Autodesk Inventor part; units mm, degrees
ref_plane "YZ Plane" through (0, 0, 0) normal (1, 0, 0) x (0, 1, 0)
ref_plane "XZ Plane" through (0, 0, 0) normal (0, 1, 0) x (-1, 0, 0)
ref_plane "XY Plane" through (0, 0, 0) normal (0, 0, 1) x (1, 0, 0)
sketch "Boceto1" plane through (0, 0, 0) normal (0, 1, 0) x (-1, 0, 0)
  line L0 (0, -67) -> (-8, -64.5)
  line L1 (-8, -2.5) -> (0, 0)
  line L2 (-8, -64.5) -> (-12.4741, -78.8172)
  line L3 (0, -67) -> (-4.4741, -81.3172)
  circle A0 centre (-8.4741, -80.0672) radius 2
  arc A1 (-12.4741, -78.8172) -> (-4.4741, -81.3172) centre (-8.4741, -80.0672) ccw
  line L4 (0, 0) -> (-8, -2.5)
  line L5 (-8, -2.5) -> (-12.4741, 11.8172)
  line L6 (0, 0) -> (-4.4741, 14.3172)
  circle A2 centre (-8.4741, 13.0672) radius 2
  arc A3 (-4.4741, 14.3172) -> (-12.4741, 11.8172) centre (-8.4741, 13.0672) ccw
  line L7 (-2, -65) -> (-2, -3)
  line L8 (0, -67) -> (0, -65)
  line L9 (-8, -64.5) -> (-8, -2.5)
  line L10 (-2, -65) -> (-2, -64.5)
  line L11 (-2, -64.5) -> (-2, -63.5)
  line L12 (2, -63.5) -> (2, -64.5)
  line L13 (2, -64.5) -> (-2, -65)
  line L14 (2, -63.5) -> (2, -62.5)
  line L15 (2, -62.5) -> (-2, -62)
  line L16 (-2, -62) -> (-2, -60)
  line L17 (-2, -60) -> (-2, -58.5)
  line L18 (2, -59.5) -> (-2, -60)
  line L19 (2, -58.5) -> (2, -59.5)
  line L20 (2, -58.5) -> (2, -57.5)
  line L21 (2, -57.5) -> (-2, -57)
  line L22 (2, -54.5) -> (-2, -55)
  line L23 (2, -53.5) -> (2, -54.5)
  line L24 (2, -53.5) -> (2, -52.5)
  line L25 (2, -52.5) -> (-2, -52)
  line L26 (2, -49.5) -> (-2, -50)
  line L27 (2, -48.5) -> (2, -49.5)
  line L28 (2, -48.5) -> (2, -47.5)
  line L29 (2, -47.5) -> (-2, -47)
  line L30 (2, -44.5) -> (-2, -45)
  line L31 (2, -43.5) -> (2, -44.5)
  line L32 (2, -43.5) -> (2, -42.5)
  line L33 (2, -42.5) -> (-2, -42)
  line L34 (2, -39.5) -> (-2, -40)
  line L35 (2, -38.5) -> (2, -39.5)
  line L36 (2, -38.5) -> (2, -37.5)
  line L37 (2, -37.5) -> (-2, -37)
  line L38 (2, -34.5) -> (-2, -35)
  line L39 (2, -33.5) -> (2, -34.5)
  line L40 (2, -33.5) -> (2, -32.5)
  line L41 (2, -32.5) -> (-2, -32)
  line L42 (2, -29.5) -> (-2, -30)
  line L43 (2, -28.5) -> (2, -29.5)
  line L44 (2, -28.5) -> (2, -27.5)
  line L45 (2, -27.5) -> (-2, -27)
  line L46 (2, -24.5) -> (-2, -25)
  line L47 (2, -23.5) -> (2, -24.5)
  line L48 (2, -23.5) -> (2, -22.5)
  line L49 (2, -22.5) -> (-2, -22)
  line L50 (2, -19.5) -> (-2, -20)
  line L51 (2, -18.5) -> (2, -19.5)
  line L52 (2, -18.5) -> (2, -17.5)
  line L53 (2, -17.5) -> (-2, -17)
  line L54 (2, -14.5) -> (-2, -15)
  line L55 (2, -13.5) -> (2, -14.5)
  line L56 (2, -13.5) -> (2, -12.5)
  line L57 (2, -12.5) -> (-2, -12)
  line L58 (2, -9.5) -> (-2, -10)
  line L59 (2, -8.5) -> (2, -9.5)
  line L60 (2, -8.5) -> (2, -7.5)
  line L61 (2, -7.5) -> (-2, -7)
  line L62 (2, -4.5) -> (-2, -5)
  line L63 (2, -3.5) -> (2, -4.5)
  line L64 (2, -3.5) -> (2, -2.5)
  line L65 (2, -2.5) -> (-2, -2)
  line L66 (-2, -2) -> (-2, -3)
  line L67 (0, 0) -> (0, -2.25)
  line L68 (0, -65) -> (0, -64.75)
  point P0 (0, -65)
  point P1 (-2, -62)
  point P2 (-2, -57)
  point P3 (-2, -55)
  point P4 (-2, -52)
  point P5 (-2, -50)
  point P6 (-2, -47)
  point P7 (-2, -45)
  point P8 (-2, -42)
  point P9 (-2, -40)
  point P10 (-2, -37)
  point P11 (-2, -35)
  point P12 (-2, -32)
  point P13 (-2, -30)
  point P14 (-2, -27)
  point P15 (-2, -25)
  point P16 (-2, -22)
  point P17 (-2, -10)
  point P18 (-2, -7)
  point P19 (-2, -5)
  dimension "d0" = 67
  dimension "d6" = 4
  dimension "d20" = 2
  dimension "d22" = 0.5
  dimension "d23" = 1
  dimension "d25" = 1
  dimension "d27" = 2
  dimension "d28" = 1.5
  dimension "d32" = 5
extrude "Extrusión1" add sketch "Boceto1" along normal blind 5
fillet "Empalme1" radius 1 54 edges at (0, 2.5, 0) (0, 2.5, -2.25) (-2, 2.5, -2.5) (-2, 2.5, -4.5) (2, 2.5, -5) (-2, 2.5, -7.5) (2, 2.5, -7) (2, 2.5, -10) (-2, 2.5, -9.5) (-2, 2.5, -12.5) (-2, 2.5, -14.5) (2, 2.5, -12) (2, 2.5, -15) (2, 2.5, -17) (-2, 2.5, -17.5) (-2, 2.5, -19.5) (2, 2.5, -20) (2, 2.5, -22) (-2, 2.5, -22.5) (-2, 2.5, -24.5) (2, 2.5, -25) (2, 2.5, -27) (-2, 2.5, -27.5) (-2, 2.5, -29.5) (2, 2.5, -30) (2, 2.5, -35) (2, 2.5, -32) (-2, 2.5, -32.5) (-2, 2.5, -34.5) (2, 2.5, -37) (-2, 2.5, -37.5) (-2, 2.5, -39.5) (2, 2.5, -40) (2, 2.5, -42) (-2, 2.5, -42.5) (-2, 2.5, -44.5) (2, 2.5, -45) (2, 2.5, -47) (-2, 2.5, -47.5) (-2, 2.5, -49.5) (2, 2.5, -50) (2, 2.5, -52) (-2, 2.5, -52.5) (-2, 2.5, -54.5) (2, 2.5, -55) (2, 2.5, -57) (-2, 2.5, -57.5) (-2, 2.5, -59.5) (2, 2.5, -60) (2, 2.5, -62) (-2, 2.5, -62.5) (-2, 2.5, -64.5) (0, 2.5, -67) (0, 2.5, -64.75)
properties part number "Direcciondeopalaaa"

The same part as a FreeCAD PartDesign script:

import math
import FreeCAD as App
import Part
import Sketcher

V = App.Vector


def edges_at(feature, points):
    """Names of the edges that pass closest to the given points."""
    edges = feature.Shape.Edges
    near = lambda p: min(range(len(edges)), key=lambda i: edges[i].distToShape(Part.Vertex(*p))[0])
    return sorted({f"Edge{near(p) + 1}" for p in points})

doc = App.newDocument("Part")
body = doc.addObject("PartDesign::Body", "Body")

# Sketch on XZ plane
sketch1 = doc.addObject("Sketcher::SketchObject", "Sketch")
body.addObject(sketch1)
sketch1.AttachmentSupport = (doc.XZ_Plane, [""])
sketch1.MapMode = "FlatFace"
sketch1.addGeometry([
    Part.LineSegment(V(4.5, -81.3, 0), V(0, -67, 0)),  # 0
    Part.LineSegment(V(0, -67, 0), V(0, -64.8, 0)),  # 1
    Part.LineSegment(V(0, -64.8, 0), V(-2, -64.5, 0)),  # 2
    Part.LineSegment(V(-2, -64.5, 0), V(-2, -62.5, 0)),  # 3
    Part.LineSegment(V(-2, -62.5, 0), V(2, -62, 0)),  # 4
    Part.LineSegment(V(2, -62, 0), V(2, -60, 0)),  # 5
    Part.LineSegment(V(2, -60, 0), V(-2, -59.5, 0)),  # 6
    Part.LineSegment(V(-2, -59.5, 0), V(-2, -57.5, 0)),  # 7
    Part.LineSegment(V(-2, -57.5, 0), V(2, -57, 0)),  # 8
    Part.LineSegment(V(2, -57, 0), V(2, -55, 0)),  # 9
    Part.LineSegment(V(2, -55, 0), V(-2, -54.5, 0)),  # 10
    Part.LineSegment(V(-2, -54.5, 0), V(-2, -52.5, 0)),  # 11
    Part.LineSegment(V(-2, -52.5, 0), V(2, -52, 0)),  # 12
    Part.LineSegment(V(2, -52, 0), V(2, -50, 0)),  # 13
    Part.LineSegment(V(2, -50, 0), V(-2, -49.5, 0)),  # 14
    Part.LineSegment(V(-2, -49.5, 0), V(-2, -47.5, 0)),  # 15
    Part.LineSegment(V(-2, -47.5, 0), V(2, -47, 0)),  # 16
    Part.LineSegment(V(2, -47, 0), V(2, -45, 0)),  # 17
    Part.LineSegment(V(2, -45, 0), V(-2, -44.5, 0)),  # 18
    Part.LineSegment(V(-2, -44.5, 0), V(-2, -42.5, 0)),  # 19
    Part.LineSegment(V(-2, -42.5, 0), V(2, -42, 0)),  # 20
    Part.LineSegment(V(2, -42, 0), V(2, -40, 0)),  # 21
    Part.LineSegment(V(2, -40, 0), V(-2, -39.5, 0)),  # 22
    Part.LineSegment(V(-2, -39.5, 0), V(-2, -37.5, 0)),  # 23
    Part.LineSegment(V(-2, -37.5, 0), V(2, -37, 0)),  # 24
    Part.LineSegment(V(2, -37, 0), V(2, -35, 0)),  # 25
    Part.LineSegment(V(2, -35, 0), V(-2, -34.5, 0)),  # 26
    Part.LineSegment(V(-2, -34.5, 0), V(-2, -32.5, 0)),  # 27
    Part.LineSegment(V(-2, -32.5, 0), V(2, -32, 0)),  # 28
    Part.LineSegment(V(2, -32, 0), V(2, -30, 0)),  # 29
    Part.LineSegment(V(2, -30, 0), V(-2, -29.5, 0)),  # 30
    Part.LineSegment(V(-2, -29.5, 0), V(-2, -27.5, 0)),  # 31
    Part.LineSegment(V(-2, -27.5, 0), V(2, -27, 0)),  # 32
    Part.LineSegment(V(2, -27, 0), V(2, -25, 0)),  # 33
    Part.LineSegment(V(2, -25, 0), V(-2, -24.5, 0)),  # 34
    Part.LineSegment(V(-2, -24.5, 0), V(-2, -22.5, 0)),  # 35
    Part.LineSegment(V(-2, -22.5, 0), V(2, -22, 0)),  # 36
    Part.LineSegment(V(2, -22, 0), V(2, -20, 0)),  # 37
    Part.LineSegment(V(2, -20, 0), V(-2, -19.5, 0)),  # 38
    Part.LineSegment(V(-2, -19.5, 0), V(-2, -17.5, 0)),  # 39
    Part.LineSegment(V(-2, -17.5, 0), V(2, -17, 0)),  # 40
    Part.LineSegment(V(2, -17, 0), V(2, -15, 0)),  # 41
    Part.LineSegment(V(2, -15, 0), V(-2, -14.5, 0)),  # 42
    Part.LineSegment(V(-2, -14.5, 0), V(-2, -12.5, 0)),  # 43
    Part.LineSegment(V(-2, -12.5, 0), V(2, -12, 0)),  # 44
    Part.LineSegment(V(2, -12, 0), V(2, -10, 0)),  # 45
    Part.LineSegment(V(2, -10, 0), V(-2, -9.5, 0)),  # 46
    Part.LineSegment(V(-2, -9.5, 0), V(-2, -7.5, 0)),  # 47
    Part.LineSegment(V(-2, -7.5, 0), V(2, -7, 0)),  # 48
    Part.LineSegment(V(2, -7, 0), V(2, -5, 0)),  # 49
    Part.LineSegment(V(2, -5, 0), V(-2, -4.5, 0)),  # 50
    Part.LineSegment(V(-2, -4.5, 0), V(-2, -2.5, 0)),  # 51
    Part.LineSegment(V(-2, -2.5, 0), V(0, -2.2, 0)),  # 52
    Part.LineSegment(V(0, -2.2, 0), V(0, 0, 0)),  # 53
    Part.LineSegment(V(0, 0, 0), V(4.5, 14.3, 0)),  # 54
    Part.ArcOfCircle(Part.Circle(V(8.5, 13.1, 0), V(0, 0, 1), 4.2), math.radians(-17), math.radians(163)),  # 55
    Part.LineSegment(V(12.5, 11.8, 0), V(8, -2.5, 0)),  # 56
    Part.LineSegment(V(8, -2.5, 0), V(8, -64.5, 0)),  # 57
    Part.LineSegment(V(8, -64.5, 0), V(12.5, -78.8, 0)),  # 58
    Part.ArcOfCircle(Part.Circle(V(8.5, -80.1, 0), V(0, 0, 1), 4.2), math.radians(-163), math.radians(17)),  # 59
    Part.Circle(V(8.5, -80.1, 0), V(0, 0, 1), 2),  # 60
    Part.Circle(V(8.5, 13.1, 0), V(0, 0, 1), 2),  # 61
], False)
sketch1.addConstraint([
    Sketcher.Constraint("Coincident", 0, 2, 1, 1),
    Sketcher.Constraint("Coincident", 1, 2, 2, 1),
    Sketcher.Constraint("Coincident", 2, 2, 3, 1),
    Sketcher.Constraint("Coincident", 3, 2, 4, 1),
    Sketcher.Constraint("Coincident", 4, 2, 5, 1),
    Sketcher.Constraint("Coincident", 5, 2, 6, 1),
    Sketcher.Constraint("Coincident", 6, 2, 7, 1),
    Sketcher.Constraint("Coincident", 7, 2, 8, 1),
    Sketcher.Constraint("Coincident", 8, 2, 9, 1),
    Sketcher.Constraint("Coincident", 9, 2, 10, 1),
    Sketcher.Constraint("Coincident", 10, 2, 11, 1),
    Sketcher.Constraint("Coincident", 11, 2, 12, 1),
    Sketcher.Constraint("Coincident", 12, 2, 13, 1),
    Sketcher.Constraint("Coincident", 13, 2, 14, 1),
    Sketcher.Constraint("Coincident", 14, 2, 15, 1),
    Sketcher.Constraint("Coincident", 15, 2, 16, 1),
    Sketcher.Constraint("Coincident", 16, 2, 17, 1),
    Sketcher.Constraint("Coincident", 17, 2, 18, 1),
    Sketcher.Constraint("Coincident", 18, 2, 19, 1),
    Sketcher.Constraint("Coincident", 19, 2, 20, 1),
    Sketcher.Constraint("Coincident", 20, 2, 21, 1),
    Sketcher.Constraint("Coincident", 21, 2, 22, 1),
    Sketcher.Constraint("Coincident", 22, 2, 23, 1),
    Sketcher.Constraint("Coincident", 23, 2, 24, 1),
    Sketcher.Constraint("Coincident", 24, 2, 25, 1),
    Sketcher.Constraint("Coincident", 25, 2, 26, 1),
    Sketcher.Constraint("Coincident", 26, 2, 27, 1),
    Sketcher.Constraint("Coincident", 27, 2, 28, 1),
    Sketcher.Constraint("Coincident", 28, 2, 29, 1),
    Sketcher.Constraint("Coincident", 29, 2, 30, 1),
    Sketcher.Constraint("Coincident", 30, 2, 31, 1),
    Sketcher.Constraint("Coincident", 31, 2, 32, 1),
    Sketcher.Constraint("Coincident", 32, 2, 33, 1),
    Sketcher.Constraint("Coincident", 33, 2, 34, 1),
    Sketcher.Constraint("Coincident", 34, 2, 35, 1),
    Sketcher.Constraint("Coincident", 35, 2, 36, 1),
    Sketcher.Constraint("Coincident", 36, 2, 37, 1),
    Sketcher.Constraint("Coincident", 37, 2, 38, 1),
    Sketcher.Constraint("Coincident", 38, 2, 39, 1),
    Sketcher.Constraint("Coincident", 39, 2, 40, 1),
    Sketcher.Constraint("Coincident", 40, 2, 41, 1),
    Sketcher.Constraint("Coincident", 41, 2, 42, 1),
    Sketcher.Constraint("Coincident", 42, 2, 43, 1),
    Sketcher.Constraint("Coincident", 43, 2, 44, 1),
    Sketcher.Constraint("Coincident", 44, 2, 45, 1),
    Sketcher.Constraint("Coincident", 45, 2, 46, 1),
    Sketcher.Constraint("Coincident", 46, 2, 47, 1),
    Sketcher.Constraint("Coincident", 47, 2, 48, 1),
    Sketcher.Constraint("Coincident", 48, 2, 49, 1),
    Sketcher.Constraint("Coincident", 49, 2, 50, 1),
    Sketcher.Constraint("Coincident", 50, 2, 51, 1),
    Sketcher.Constraint("Coincident", 51, 2, 52, 1),
    Sketcher.Constraint("Coincident", 52, 2, 53, 1),
    Sketcher.Constraint("Coincident", 53, 2, 54, 1),
    Sketcher.Constraint("Tangent", 54, 2, 55, 2),
    Sketcher.Constraint("Tangent", 55, 1, 56, 1),
    Sketcher.Constraint("Coincident", 56, 2, 57, 1),
    Sketcher.Constraint("Coincident", 57, 2, 58, 1),
    Sketcher.Constraint("Tangent", 58, 2, 59, 2),
    Sketcher.Constraint("Tangent", 59, 1, 0, 1),
    Sketcher.Constraint("Vertical", 1),
    Sketcher.Constraint("Vertical", 3),
    Sketcher.Constraint("Vertical", 5),
    Sketcher.Constraint("Vertical", 7),
    Sketcher.Constraint("Vertical", 9),
    Sketcher.Constraint("Vertical", 11),
    Sketcher.Constraint("Vertical", 13),
    Sketcher.Constraint("Vertical", 15),
    Sketcher.Constraint("Vertical", 17),
    Sketcher.Constraint("Vertical", 19),
    Sketcher.Constraint("Vertical", 21),
    Sketcher.Constraint("Vertical", 23),
    Sketcher.Constraint("Vertical", 25),
    Sketcher.Constraint("Vertical", 27),
    Sketcher.Constraint("Vertical", 29),
    Sketcher.Constraint("Vertical", 31),
    Sketcher.Constraint("Vertical", 33),
    Sketcher.Constraint("Vertical", 35),
    Sketcher.Constraint("Vertical", 37),
    Sketcher.Constraint("Vertical", 39),
    Sketcher.Constraint("Vertical", 41),
    Sketcher.Constraint("Vertical", 43),
    Sketcher.Constraint("Vertical", 45),
    Sketcher.Constraint("Vertical", 47),
    Sketcher.Constraint("Vertical", 49),
    Sketcher.Constraint("Vertical", 51),
    Sketcher.Constraint("Vertical", 53),
    Sketcher.Constraint("Vertical", 57),
    Sketcher.Constraint("Coincident", 53, 2, -1, 1),
    Sketcher.Constraint("Coincident", 60, 3, 59, 3),
    Sketcher.Constraint("Coincident", 61, 3, 55, 3),
    Sketcher.Constraint("Equal", 55, 59),
    Sketcher.Constraint("Equal", 60, 61),
    Sketcher.Constraint("PointOnObject", 0, 2, -2),
    Sketcher.Constraint("Parallel", 2, 6),
    Sketcher.Constraint("Parallel", 4, 8),
    Sketcher.Constraint("Parallel", 6, 10),
    Sketcher.Constraint("Parallel", 8, 12),
    Sketcher.Constraint("Parallel", 10, 14),
    Sketcher.Constraint("Parallel", 12, 16),
    Sketcher.Constraint("Parallel", 14, 18),
    Sketcher.Constraint("Parallel", 16, 20),
    Sketcher.Constraint("Parallel", 18, 22),
    Sketcher.Constraint("Parallel", 20, 24),
    Sketcher.Constraint("Parallel", 22, 26),
    Sketcher.Constraint("Parallel", 24, 28),
    Sketcher.Constraint("Parallel", 26, 30),
    Sketcher.Constraint("Parallel", 28, 32),
    Sketcher.Constraint("Parallel", 30, 34),
    Sketcher.Constraint("Parallel", 32, 36),
    Sketcher.Constraint("Parallel", 34, 38),
    Sketcher.Constraint("Parallel", 36, 40),
    Sketcher.Constraint("Parallel", 38, 42),
    Sketcher.Constraint("Parallel", 40, 44),
    Sketcher.Constraint("Parallel", 42, 46),
    Sketcher.Constraint("Parallel", 44, 48),
    Sketcher.Constraint("Parallel", 46, 50),
    Sketcher.Constraint("Parallel", 48, 52),
    Sketcher.Constraint("Parallel", 54, 56),
    Sketcher.Constraint("Parallel", 0, 58),
    Sketcher.Constraint("Horizontal", 51, 2, 56, 2),
    Sketcher.Constraint("Horizontal", 2, 2, 57, 2),
    Sketcher.Constraint("Vertical", 55, 3, 59, 3),
    Sketcher.Constraint("Vertical", 3, 2, 6, 2),
    Sketcher.Constraint("Vertical", 5, 2, 8, 2),
    Sketcher.Constraint("Vertical", 7, 2, 10, 2),
    Sketcher.Constraint("Vertical", 9, 2, 12, 2),
    Sketcher.Constraint("Vertical", 11, 2, 14, 2),
    Sketcher.Constraint("Vertical", 13, 2, 16, 2),
    Sketcher.Constraint("Vertical", 15, 2, 18, 2),
    Sketcher.Constraint("Vertical", 17, 2, 20, 2),
    Sketcher.Constraint("Vertical", 19, 2, 22, 2),
    Sketcher.Constraint("Vertical", 21, 2, 24, 2),
    Sketcher.Constraint("Vertical", 23, 2, 26, 2),
    Sketcher.Constraint("Vertical", 25, 2, 28, 2),
    Sketcher.Constraint("Vertical", 27, 2, 30, 2),
    Sketcher.Constraint("Vertical", 29, 2, 32, 2),
    Sketcher.Constraint("Vertical", 31, 2, 34, 2),
    Sketcher.Constraint("Vertical", 33, 2, 36, 2),
    Sketcher.Constraint("Vertical", 35, 2, 38, 2),
    Sketcher.Constraint("Vertical", 37, 2, 40, 2),
    Sketcher.Constraint("Vertical", 39, 2, 42, 2),
    Sketcher.Constraint("Vertical", 41, 2, 44, 2),
    Sketcher.Constraint("Vertical", 43, 2, 46, 2),
    Sketcher.Constraint("Vertical", 45, 2, 48, 2),
    Sketcher.Constraint("Vertical", 47, 2, 50, 2),
    Sketcher.Constraint("Vertical", 55, 1, 58, 2),
    Sketcher.Constraint("Equal", 3, 5),
    Sketcher.Constraint("Equal", 5, 7),
    Sketcher.Constraint("Equal", 7, 9),
    Sketcher.Constraint("Equal", 9, 11),
    Sketcher.Constraint("Equal", 11, 13),
    Sketcher.Constraint("Equal", 13, 15),
    Sketcher.Constraint("Equal", 15, 17),
    Sketcher.Constraint("Equal", 17, 19),
    Sketcher.Constraint("Equal", 19, 21),
    Sketcher.Constraint("Equal", 21, 23),
    Sketcher.Constraint("Equal", 23, 25),
    Sketcher.Constraint("Equal", 25, 27),
    Sketcher.Constraint("Equal", 27, 29),
    Sketcher.Constraint("Equal", 29, 31),
    Sketcher.Constraint("Equal", 31, 33),
    Sketcher.Constraint("Equal", 33, 35),
    Sketcher.Constraint("Equal", 35, 37),
    Sketcher.Constraint("Equal", 37, 39),
    Sketcher.Constraint("Equal", 39, 41),
    Sketcher.Constraint("Equal", 41, 43),
    Sketcher.Constraint("Equal", 43, 45),
    Sketcher.Constraint("Equal", 45, 47),
    Sketcher.Constraint("Equal", 47, 49),
    Sketcher.Constraint("Equal", 49, 51),
    Sketcher.Constraint("Equal", 1, 53),
    Sketcher.Constraint("Equal", 54, 56),
    Sketcher.Constraint("Diameter", 60, 4.0),
    Sketcher.Constraint("DistanceY", 3, 1, 3, 2, 2.0),
    Sketcher.Constraint("DistanceY", 0, 2, -1, 1, 67.0),
    Sketcher.Constraint("DistanceX", 2, 2, -1, 1, 2.0),
    Sketcher.Constraint("DistanceX", -1, 1, 4, 2, 2.0),
    Sketcher.Constraint("DistanceY", 49, 2, -1, 1, 5.0),
    Sketcher.Constraint("Distance", 0, 15.0),
    Sketcher.Constraint("DistanceX", -1, 1, 56, 2, 8.0),
])
pad1 = doc.addObject("PartDesign::Pad", "Pad")
body.addObject(pad1)
pad1.Profile = sketch1
pad1.Length = 5
pad1.Reversed = True
doc.recompute()

fillet = doc.addObject("PartDesign::Fillet", "Fillet")
body.addObject(fillet)
fillet.Base = (pad1, edges_at(pad1, [
    (0, 2.5, 0),
    (0, 2.5, -2.25),
    (-2, 2.5, -2.5),
    (-2, 2.5, -4.5),
    (2, 2.5, -5),
    (-2, 2.5, -7.5),
    (2, 2.5, -7),
    (2, 2.5, -10),
    (-2, 2.5, -9.5),
    (-2, 2.5, -12.5),
    (-2, 2.5, -14.5),
    (2, 2.5, -12),
    (2, 2.5, -15),
    (2, 2.5, -17),
    (-2, 2.5, -17.5),
    (-2, 2.5, -19.5),
    (2, 2.5, -20),
    (2, 2.5, -22),
    (-2, 2.5, -22.5),
    (-2, 2.5, -24.5),
    (2, 2.5, -25),
    (2, 2.5, -27),
    (-2, 2.5, -27.5),
    (-2, 2.5, -29.5),
    (2, 2.5, -30),
    (2, 2.5, -35),
    (2, 2.5, -32),
    (-2, 2.5, -32.5),
    (-2, 2.5, -34.5),
    (2, 2.5, -37),
    (-2, 2.5, -37.5),
    (-2, 2.5, -39.5),
    (2, 2.5, -40),
    (2, 2.5, -42),
    (-2, 2.5, -42.5),
    (-2, 2.5, -44.5),
    (2, 2.5, -45),
    (2, 2.5, -47),
    (-2, 2.5, -47.5),
    (-2, 2.5, -49.5),
    (2, 2.5, -50),
    (2, 2.5, -52),
    (-2, 2.5, -52.5),
    (-2, 2.5, -54.5),
    (2, 2.5, -55),
    (2, 2.5, -57),
    (-2, 2.5, -57.5),
    (-2, 2.5, -59.5),
    (2, 2.5, -60),
    (2, 2.5, -62),
    (-2, 2.5, -62.5),
    (-2, 2.5, -64.5),
    (0, 2.5, -67),
    (0, 2.5, -64.75),
]))
fillet.Radius = 1

doc.recompute()
